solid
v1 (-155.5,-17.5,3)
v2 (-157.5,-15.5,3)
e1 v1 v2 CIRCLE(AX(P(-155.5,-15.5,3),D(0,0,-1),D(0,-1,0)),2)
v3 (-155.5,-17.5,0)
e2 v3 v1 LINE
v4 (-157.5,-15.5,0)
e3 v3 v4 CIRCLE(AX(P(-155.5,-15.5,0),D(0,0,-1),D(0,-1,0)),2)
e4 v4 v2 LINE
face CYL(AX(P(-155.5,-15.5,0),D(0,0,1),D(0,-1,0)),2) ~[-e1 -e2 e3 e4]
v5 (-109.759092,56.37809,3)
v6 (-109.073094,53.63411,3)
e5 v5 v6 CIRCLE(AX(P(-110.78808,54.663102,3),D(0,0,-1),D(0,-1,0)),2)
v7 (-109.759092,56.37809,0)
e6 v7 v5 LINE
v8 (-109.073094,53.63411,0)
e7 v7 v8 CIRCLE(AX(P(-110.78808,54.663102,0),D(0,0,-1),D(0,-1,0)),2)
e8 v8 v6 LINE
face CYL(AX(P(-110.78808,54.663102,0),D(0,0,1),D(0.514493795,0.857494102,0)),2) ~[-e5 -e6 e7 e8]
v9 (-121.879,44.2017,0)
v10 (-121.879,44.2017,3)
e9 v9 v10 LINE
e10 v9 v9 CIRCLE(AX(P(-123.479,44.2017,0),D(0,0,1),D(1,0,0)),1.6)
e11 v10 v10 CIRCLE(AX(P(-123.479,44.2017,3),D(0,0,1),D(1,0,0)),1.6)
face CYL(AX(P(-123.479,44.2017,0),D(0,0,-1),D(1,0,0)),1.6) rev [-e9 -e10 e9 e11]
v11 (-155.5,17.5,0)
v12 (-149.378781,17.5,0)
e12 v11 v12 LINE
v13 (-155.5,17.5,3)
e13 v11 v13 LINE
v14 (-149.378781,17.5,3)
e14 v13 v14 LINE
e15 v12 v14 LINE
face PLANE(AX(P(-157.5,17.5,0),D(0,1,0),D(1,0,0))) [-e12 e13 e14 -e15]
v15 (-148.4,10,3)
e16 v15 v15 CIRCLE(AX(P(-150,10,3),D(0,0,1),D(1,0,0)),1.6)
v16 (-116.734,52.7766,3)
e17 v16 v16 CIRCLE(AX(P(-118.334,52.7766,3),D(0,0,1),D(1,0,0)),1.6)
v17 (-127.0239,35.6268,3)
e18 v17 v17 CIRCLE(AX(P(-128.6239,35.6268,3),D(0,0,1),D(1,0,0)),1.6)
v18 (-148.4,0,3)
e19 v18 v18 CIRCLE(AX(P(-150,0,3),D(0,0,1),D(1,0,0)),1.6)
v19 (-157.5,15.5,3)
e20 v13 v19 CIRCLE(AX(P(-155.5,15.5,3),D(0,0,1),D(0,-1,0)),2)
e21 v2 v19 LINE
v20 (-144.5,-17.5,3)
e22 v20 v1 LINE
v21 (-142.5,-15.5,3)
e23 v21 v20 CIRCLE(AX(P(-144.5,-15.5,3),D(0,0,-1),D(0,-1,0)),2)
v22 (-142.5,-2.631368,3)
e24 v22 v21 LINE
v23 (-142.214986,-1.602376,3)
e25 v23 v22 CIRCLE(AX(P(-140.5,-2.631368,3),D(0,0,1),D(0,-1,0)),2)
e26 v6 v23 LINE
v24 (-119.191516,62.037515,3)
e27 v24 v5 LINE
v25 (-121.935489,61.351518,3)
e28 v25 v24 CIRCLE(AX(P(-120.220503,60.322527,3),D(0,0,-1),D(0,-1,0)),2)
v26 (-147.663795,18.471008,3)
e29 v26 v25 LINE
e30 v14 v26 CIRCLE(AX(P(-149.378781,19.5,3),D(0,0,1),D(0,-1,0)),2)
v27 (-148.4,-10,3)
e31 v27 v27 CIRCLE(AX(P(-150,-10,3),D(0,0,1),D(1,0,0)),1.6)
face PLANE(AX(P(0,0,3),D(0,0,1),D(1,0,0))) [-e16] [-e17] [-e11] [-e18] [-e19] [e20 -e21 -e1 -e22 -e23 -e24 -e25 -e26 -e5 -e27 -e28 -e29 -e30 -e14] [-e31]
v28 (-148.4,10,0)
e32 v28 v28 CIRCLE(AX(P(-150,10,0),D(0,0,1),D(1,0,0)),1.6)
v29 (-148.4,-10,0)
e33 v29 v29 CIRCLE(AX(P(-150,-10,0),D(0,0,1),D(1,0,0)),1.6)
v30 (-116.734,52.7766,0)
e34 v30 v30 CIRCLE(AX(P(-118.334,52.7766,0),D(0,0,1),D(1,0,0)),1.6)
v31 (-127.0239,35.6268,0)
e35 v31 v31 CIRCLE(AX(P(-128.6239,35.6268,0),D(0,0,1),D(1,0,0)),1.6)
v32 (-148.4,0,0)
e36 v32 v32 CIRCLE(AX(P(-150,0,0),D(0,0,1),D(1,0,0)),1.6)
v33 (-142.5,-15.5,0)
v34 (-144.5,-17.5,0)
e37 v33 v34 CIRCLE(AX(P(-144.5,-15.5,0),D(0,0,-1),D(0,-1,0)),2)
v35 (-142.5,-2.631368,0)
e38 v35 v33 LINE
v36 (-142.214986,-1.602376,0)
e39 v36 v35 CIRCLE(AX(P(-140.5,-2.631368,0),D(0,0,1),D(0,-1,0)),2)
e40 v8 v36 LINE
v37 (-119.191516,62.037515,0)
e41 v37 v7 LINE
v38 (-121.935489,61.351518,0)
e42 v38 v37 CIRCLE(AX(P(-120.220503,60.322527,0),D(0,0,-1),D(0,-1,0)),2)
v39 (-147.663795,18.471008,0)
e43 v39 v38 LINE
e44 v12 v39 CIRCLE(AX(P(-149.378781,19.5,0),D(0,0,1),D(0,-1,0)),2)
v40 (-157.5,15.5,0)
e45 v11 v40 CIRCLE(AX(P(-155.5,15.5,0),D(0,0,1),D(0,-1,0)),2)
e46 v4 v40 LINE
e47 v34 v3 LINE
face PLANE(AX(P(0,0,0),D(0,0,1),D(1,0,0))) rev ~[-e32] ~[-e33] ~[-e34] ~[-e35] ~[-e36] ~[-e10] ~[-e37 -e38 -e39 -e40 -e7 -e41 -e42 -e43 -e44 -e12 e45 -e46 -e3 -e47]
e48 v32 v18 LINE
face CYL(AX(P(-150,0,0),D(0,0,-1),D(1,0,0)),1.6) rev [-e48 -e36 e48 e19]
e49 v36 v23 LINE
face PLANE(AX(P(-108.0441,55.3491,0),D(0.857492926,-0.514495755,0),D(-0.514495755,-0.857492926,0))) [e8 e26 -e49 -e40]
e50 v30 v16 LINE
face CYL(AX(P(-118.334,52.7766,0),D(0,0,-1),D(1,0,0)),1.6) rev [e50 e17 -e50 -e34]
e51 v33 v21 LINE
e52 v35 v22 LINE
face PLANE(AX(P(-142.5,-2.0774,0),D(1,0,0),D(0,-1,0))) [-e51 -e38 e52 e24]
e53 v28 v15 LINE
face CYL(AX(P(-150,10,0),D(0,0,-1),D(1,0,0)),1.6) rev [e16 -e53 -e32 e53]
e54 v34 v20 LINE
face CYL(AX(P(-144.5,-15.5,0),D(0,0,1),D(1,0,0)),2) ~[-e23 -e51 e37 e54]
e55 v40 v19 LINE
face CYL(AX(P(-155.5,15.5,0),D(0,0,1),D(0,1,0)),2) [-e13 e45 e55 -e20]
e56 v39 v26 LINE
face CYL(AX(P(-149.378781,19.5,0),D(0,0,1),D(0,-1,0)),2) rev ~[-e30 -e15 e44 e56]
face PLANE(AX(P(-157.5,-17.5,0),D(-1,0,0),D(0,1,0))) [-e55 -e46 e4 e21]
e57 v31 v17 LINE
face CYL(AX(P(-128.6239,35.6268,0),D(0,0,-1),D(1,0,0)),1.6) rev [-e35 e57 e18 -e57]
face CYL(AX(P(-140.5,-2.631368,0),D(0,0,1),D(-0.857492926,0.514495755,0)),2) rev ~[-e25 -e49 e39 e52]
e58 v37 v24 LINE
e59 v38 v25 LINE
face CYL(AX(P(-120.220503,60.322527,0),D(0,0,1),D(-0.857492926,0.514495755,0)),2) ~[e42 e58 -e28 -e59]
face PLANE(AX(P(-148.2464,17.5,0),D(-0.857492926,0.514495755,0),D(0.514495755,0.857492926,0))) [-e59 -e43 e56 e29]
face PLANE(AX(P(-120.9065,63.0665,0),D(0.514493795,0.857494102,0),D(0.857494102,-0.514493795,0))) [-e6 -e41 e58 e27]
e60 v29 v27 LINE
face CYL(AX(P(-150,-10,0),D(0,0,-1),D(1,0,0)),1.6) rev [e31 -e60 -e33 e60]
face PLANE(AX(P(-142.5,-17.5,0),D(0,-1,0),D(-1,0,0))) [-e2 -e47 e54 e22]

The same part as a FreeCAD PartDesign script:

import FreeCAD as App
import Part
import Sketcher


def edges_at(feature, points):
    """Names of the edges that pass closest to the given points."""
    edges = feature.Shape.Edges
    near = lambda p: min(range(len(edges)), key=lambda i: edges[i].distToShape(Part.Vertex(*p))[0])
    return sorted({f"Edge{near(p) + 1}" for p in points})

doc = App.newDocument("Part")
params = doc.addObject("Spreadsheet::Sheet", "Params")
for row, (alias, value) in enumerate([
    ("sketch1_diameter", "3.2 mm"),
    ("sketch1_width", "15 mm"),
    ("sketch1_length", "15 mm"),
    ("pad1_length", "3 mm"),
    ("fillet_radius", "2 mm"),
], start=1):
    params.set(f"A{row}", alias)
    params.set(f"B{row}", "=" + value)
    params.setAlias(f"B{row}", alias)

body = doc.addObject("PartDesign::Body", "Body")

# Sketch on XY plane
sketch1 = doc.addObject("Sketcher::SketchObject", "Sketch")
body.addObject(sketch1)
sketch1.AttachmentSupport = (doc.XY_Plane, [""])
sketch1.MapMode = "FlatFace"
sketch1.addGeometry([
    Part.LineSegment(App.Vector(-148.2464, 17.5, 0), App.Vector(-157.5, 17.5, 0)),  # 0
    Part.LineSegment(App.Vector(-157.5, 17.5, 0), App.Vector(-157.5, -17.5, 0)),  # 1
    Part.LineSegment(App.Vector(-157.5, -17.5, 0), App.Vector(-142.5, -17.5, 0)),  # 2
    Part.LineSegment(App.Vector(-142.5, -17.5, 0), App.Vector(-142.5, -2.0774, 0)),  # 3
    Part.LineSegment(App.Vector(-142.5, -2.0774, 0), App.Vector(-108.0441, 55.3491, 0)),  # 4
    Part.LineSegment(App.Vector(-108.0441, 55.3491, 0), App.Vector(-120.9065, 63.0665, 0)),  # 5
    Part.LineSegment(App.Vector(-120.9065, 63.0665, 0), App.Vector(-148.2464, 17.5, 0)),  # 6
    Part.Circle(App.Vector(-150, -10, 0), App.Vector(0, 0, 1), 1.6),  # 7
    Part.Circle(App.Vector(-150, 0, 0), App.Vector(0, 0, 1), 1.6),  # 8
    Part.Circle(App.Vector(-150, 10, 0), App.Vector(0, 0, 1), 1.6),  # 9
    Part.Circle(App.Vector(-128.6239, 35.6268, 0), App.Vector(0, 0, 1), 1.6),  # 10
    Part.Circle(App.Vector(-123.479, 44.2017, 0), App.Vector(0, 0, 1), 1.6),  # 11
    Part.Circle(App.Vector(-118.334, 52.7766, 0), App.Vector(0, 0, 1), 1.6),  # 12
], False)
sketch1.addConstraint([
    Sketcher.Constraint("Coincident", 0, 2, 1, 1),
    Sketcher.Constraint("Coincident", 1, 2, 2, 1),
    Sketcher.Constraint("Coincident", 2, 2, 3, 1),
    Sketcher.Constraint("Coincident", 3, 2, 4, 1),
    Sketcher.Constraint("Coincident", 4, 2, 5, 1),
    Sketcher.Constraint("Coincident", 5, 2, 6, 1),
    Sketcher.Constraint("Coincident", 6, 2, 0, 1),
    Sketcher.Constraint("Horizontal", 0),
    Sketcher.Constraint("Vertical", 1),
    Sketcher.Constraint("Horizontal", 2),
    Sketcher.Constraint("Vertical", 3),
    Sketcher.Constraint("Equal", 7, 8),
    Sketcher.Constraint("Equal", 8, 9),
    Sketcher.Constraint("Equal", 9, 10),
    Sketcher.Constraint("Equal", 10, 11),
    Sketcher.Constraint("Equal", 11, 12),
    Sketcher.Constraint("Symmetric", 7, 3, 9, 3, -1),
    Sketcher.Constraint("PointOnObject", 8, 3, -1),
    Sketcher.Constraint("Perpendicular", 4, 5),
    Sketcher.Constraint("Perpendicular", 5, 6),
    Sketcher.Constraint("Vertical", 7, 3, 8, 3),
    Sketcher.Constraint("Diameter", 7, 3.2),
    Sketcher.Constraint("DistanceX", 2, 1, 2, 2, 15.0),
    Sketcher.Constraint("Distance", 5, 15.0),
    Sketcher.Constraint("DistanceY", 7, 3, -1, 1, 10.0),
    Sketcher.Constraint("DistanceX", 2, 2, -1, 1, 142.5),
    Sketcher.Constraint("DistanceX", 0, 2, 9, 3, 7.5),
    Sketcher.Constraint("DistanceY", 9, 3, 0, 2, 7.5),
    Sketcher.Constraint("DistanceY", 1, 2, 7, 3, 7.5),
    Sketcher.Constraint("DistanceX", 10, 3, 12, 3, 10.29),
    Sketcher.Constraint("DistanceX", 12, 3, 4, 2, 10.29),
    Sketcher.Constraint("DistanceY", 12, 3, 5, 2, 10.29),
    Sketcher.Constraint("DistanceX", 0, 2, 0, 1, 9.2536),
    Sketcher.Constraint("DistanceY", 3, 1, 3, 2, 15.4226),
    Sketcher.Constraint("DistanceX", 10, 3, -1, 1, 128.624),
    Sketcher.Constraint("DistanceX", 11, 3, -1, 1, 123.479),
    Sketcher.Constraint("DistanceY", 10, 3, 11, 3, 8.575),
    Sketcher.Constraint("DistanceY", 11, 3, 12, 3, 8.575),
])
sketch1.setExpression("Constraints[21]", "Params.sketch1_diameter")
sketch1.setExpression("Constraints[22]", "Params.sketch1_width")
sketch1.setExpression("Constraints[23]", "Params.sketch1_length")
pad1 = doc.addObject("PartDesign::Pad", "Pad")
body.addObject(pad1)
pad1.Profile = sketch1
pad1.setExpression("Length", "Params.pad1_length")
doc.recompute()

fillet = doc.addObject("PartDesign::Fillet", "Fillet")
body.addObject(fillet)
fillet.Base = (pad1, edges_at(pad1, [
    (-120.906, 63.066, 1.5),
    (-108.044, 55.349, 1.5),
    (-142.5, -2.077, 1.5),
    (-142.5, -17.5, 1.5),
    (-157.5, -17.5, 1.5),
    (-157.5, 17.5, 1.5),
    (-148.246, 17.5, 1.5),
]))
fillet.setExpression("Radius", "Params.fillet_radius")

doc.recompute()
